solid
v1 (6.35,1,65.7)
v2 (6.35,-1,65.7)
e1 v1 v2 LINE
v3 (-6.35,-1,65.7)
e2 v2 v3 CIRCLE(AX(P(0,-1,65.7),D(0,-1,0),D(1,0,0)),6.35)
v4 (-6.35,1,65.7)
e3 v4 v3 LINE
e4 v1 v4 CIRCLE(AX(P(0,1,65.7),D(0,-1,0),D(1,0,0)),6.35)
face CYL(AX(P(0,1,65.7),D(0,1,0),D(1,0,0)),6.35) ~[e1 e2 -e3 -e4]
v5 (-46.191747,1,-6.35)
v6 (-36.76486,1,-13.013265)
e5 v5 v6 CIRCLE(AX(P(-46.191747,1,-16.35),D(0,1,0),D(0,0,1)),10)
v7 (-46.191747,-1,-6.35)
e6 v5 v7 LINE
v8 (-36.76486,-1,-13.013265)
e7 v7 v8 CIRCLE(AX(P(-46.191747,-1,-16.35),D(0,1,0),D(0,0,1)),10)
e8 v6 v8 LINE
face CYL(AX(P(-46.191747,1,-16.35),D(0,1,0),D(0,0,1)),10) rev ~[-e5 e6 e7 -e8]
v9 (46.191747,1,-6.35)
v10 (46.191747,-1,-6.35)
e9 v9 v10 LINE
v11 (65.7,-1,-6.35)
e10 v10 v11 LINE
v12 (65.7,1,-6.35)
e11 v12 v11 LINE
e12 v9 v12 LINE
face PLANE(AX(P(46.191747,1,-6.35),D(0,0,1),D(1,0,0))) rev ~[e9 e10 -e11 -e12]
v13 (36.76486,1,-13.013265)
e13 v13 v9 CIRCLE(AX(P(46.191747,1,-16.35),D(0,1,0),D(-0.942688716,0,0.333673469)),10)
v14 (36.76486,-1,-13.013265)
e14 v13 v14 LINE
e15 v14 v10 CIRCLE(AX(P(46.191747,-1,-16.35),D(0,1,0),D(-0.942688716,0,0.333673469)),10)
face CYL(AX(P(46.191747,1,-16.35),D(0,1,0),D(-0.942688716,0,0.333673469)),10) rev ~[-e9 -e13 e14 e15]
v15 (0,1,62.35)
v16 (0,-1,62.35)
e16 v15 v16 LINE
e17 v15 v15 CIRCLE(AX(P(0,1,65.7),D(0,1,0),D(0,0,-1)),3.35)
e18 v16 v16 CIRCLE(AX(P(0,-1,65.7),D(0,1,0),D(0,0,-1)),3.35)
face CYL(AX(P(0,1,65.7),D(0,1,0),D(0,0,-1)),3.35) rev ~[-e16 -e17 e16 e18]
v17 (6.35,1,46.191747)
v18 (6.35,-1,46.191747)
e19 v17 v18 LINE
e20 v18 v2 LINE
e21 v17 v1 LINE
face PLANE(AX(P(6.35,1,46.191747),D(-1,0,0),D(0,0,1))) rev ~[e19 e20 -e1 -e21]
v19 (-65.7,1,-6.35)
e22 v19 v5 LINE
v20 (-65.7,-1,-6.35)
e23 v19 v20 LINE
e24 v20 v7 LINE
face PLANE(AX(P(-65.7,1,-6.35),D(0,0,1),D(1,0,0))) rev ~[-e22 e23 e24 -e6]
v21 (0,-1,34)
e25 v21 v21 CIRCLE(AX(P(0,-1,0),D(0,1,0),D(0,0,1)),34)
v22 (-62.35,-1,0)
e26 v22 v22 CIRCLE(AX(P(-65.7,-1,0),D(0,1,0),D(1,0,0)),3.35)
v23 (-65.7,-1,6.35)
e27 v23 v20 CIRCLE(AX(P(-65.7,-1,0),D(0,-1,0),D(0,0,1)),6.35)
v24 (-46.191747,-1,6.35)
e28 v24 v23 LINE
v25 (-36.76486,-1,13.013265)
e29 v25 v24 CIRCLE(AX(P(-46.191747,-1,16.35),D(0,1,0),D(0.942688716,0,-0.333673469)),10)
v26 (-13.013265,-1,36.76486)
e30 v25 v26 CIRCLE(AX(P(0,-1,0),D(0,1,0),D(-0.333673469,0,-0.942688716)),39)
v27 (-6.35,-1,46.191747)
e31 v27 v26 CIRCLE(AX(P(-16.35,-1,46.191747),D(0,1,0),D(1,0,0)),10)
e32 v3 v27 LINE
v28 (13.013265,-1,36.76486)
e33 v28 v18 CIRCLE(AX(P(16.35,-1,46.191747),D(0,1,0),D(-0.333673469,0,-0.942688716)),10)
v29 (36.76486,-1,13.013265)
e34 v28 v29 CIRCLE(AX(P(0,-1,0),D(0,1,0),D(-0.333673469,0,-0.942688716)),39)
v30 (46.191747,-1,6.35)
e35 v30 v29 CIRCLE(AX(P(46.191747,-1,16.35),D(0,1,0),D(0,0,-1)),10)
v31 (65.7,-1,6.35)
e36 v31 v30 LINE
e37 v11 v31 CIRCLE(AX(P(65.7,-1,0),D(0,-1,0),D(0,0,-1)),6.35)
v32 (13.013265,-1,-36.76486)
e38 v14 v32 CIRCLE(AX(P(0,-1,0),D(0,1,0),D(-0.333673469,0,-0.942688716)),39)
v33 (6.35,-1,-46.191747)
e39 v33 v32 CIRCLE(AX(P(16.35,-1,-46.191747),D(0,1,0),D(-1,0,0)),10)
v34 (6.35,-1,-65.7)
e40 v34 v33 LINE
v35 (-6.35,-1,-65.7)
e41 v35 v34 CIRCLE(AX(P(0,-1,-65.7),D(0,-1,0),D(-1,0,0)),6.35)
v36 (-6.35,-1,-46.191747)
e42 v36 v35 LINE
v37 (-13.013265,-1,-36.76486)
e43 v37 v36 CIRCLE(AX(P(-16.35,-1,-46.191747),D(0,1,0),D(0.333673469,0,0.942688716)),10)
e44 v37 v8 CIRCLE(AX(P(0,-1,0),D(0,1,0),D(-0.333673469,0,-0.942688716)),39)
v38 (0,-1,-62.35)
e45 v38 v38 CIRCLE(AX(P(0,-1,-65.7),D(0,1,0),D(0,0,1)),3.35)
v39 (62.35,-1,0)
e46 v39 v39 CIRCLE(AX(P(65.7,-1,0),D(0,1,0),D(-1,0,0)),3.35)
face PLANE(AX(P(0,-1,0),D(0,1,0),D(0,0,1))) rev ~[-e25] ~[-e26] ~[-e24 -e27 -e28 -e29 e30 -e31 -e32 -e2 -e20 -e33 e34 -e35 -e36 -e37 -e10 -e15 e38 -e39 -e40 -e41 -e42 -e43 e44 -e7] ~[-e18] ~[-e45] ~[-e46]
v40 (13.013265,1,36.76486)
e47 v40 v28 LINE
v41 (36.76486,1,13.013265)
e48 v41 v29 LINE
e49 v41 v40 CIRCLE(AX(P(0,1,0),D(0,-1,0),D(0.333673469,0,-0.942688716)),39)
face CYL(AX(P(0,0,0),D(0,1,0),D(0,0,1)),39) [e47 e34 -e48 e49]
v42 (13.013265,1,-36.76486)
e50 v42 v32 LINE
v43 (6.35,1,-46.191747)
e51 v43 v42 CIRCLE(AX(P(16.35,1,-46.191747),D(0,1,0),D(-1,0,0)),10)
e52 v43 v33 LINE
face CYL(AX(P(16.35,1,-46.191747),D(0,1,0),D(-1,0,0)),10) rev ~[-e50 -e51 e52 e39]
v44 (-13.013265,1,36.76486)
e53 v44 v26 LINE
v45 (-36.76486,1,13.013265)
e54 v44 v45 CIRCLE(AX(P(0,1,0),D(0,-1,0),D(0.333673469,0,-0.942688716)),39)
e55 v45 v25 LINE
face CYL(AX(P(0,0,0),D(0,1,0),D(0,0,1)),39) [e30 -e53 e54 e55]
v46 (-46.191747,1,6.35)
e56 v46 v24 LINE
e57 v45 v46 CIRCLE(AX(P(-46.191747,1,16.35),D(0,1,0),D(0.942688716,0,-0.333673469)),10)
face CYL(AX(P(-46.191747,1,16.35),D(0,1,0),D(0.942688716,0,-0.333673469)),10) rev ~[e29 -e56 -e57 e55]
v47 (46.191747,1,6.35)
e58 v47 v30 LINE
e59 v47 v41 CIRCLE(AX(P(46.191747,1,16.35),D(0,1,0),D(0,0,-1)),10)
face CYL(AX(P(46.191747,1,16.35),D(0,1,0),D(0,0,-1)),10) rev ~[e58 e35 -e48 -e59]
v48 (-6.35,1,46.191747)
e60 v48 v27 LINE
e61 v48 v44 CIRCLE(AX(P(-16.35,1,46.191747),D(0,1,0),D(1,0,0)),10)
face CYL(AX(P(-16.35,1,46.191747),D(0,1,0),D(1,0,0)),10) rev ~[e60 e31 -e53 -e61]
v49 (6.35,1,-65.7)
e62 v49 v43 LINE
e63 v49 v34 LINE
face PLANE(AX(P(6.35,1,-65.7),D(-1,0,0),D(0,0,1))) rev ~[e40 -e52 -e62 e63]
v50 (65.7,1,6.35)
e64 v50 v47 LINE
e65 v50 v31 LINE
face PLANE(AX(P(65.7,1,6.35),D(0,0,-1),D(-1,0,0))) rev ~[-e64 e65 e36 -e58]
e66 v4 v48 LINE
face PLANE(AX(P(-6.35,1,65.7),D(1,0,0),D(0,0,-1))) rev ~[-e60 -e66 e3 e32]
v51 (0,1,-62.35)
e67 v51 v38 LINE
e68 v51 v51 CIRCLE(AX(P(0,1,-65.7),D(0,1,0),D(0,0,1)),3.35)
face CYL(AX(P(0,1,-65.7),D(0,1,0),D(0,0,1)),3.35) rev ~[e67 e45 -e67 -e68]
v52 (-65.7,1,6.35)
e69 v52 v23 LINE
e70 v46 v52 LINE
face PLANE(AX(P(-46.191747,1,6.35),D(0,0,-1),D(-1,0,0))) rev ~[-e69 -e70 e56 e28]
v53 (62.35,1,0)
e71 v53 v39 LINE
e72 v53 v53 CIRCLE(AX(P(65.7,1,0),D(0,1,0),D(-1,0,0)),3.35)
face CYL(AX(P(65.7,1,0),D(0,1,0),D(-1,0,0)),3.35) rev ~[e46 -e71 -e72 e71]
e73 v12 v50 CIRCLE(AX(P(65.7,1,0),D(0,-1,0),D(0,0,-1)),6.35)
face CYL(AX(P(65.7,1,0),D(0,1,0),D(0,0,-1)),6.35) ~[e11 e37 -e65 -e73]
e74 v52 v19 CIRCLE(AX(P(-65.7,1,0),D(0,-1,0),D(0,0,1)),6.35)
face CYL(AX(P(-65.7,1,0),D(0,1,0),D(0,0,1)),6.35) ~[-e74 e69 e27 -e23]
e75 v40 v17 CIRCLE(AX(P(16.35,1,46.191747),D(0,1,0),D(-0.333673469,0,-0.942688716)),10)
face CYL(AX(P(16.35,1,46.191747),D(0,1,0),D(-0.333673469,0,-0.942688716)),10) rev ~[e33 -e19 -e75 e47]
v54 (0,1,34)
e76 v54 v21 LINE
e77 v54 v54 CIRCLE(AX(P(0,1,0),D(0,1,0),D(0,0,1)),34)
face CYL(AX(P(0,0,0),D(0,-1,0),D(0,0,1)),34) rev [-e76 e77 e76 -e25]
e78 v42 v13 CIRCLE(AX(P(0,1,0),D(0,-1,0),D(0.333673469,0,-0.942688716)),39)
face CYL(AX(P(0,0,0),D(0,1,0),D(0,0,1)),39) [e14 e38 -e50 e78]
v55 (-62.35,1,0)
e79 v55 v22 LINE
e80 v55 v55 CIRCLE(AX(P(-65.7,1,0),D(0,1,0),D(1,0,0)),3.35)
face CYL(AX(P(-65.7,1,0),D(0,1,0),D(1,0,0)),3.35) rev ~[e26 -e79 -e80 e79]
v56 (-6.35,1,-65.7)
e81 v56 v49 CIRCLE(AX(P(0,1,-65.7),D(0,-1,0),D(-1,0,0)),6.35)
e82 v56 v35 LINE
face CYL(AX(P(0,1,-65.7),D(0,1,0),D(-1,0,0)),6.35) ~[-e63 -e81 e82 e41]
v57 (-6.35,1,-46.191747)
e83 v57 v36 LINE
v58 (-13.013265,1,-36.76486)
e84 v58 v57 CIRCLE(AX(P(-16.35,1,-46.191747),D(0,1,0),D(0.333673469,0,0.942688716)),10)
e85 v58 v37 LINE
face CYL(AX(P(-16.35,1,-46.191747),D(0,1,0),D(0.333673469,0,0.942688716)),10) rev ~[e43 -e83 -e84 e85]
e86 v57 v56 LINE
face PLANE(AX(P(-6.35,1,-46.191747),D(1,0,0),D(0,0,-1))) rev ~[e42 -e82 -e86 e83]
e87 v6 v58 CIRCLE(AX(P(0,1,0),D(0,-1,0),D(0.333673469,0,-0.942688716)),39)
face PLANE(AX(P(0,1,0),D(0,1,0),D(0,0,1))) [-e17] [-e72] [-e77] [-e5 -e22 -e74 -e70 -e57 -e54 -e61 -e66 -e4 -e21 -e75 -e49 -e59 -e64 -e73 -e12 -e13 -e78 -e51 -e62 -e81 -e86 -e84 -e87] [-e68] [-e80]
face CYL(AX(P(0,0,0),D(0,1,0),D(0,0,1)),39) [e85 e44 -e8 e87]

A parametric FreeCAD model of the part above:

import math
import FreeCAD as App
import Part
import Sketcher

V = App.Vector

doc = App.newDocument("Part")
body = doc.addObject("PartDesign::Body", "Body")

# Sketch on XZ plane
sketch1 = body.newObject("Sketcher::SketchObject", "Sketch")
sketch1.AttachmentSupport = (doc.getObject("XZ_Plane"), [""])
sketch1.MapMode = "FlatFace"
sketch1.addGeometry(Part.Circle(V(0, 0, 0), V(0, 0, 1), 39), False)
sketch1.addGeometry(Part.Circle(V(0, 0, 0), V(0, 0, 1), 34), False)
sketch1.addConstraint(Sketcher.Constraint("Coincident", 0, 3, -1, 1))
sketch1.addConstraint(Sketcher.Constraint("Coincident", 1, 3, -1, 1))
sketch1.addConstraint(Sketcher.Constraint("Diameter", 0, 78.0))
sketch1.addConstraint(Sketcher.Constraint("Diameter", 1, 68.0))
pad1 = body.newObject("PartDesign::Pad", "Pad")
pad1.Profile = sketch1
pad1.Length = 2
pad1.Midplane = True

# Sketch on XZ plane
sketch2 = body.newObject("Sketcher::SketchObject", "Sketch001")
sketch2.AttachmentSupport = (doc.getObject("XZ_Plane"), [""])
sketch2.MapMode = "FlatFace"
sketch2.AttachmentOffset = App.Placement(V(0, 0, -1), App.Rotation())
sketch2.addGeometry(Part.LineSegment(V(-6.35, -65.7, 0), V(-6.35, -46.191747, 0)), False)
sketch2.addGeometry(Part.ArcOfCircle(Part.Circle(V(-16.35, -46.191747, 0), V(0, 0, 1), 10), math.radians(0), math.radians(70.508108)), False)
sketch2.addGeometry(Part.ArcOfCircle(Part.Circle(V(0, 0, 0), V(0, 0, 1), 39), math.radians(-109.491892), math.radians(-70.508108)), False)
sketch2.addGeometry(Part.ArcOfCircle(Part.Circle(V(16.35, -46.191747, 0), V(0, 0, 1), 10), math.radians(109.491892), math.radians(180)), False)
sketch2.addGeometry(Part.LineSegment(V(6.35, -46.191747, 0), V(6.35, -65.7, 0)), False)
sketch2.addGeometry(Part.ArcOfCircle(Part.Circle(V(0, -65.7, 0), V(0, 0, 1), 6.35), math.radians(180), math.radians(360)), False)
sketch2.addGeometry(Part.Circle(V(0, -65.7, 0), V(0, 0, 1), 3.35), False)
sketch2.addConstraint(Sketcher.Constraint("Tangent", 0, 2, 1, 1))
sketch2.addConstraint(Sketcher.Constraint("Tangent", 1, 2, 2, 1))
sketch2.addConstraint(Sketcher.Constraint("Tangent", 2, 2, 3, 1))
sketch2.addConstraint(Sketcher.Constraint("Tangent", 3, 2, 4, 1))
sketch2.addConstraint(Sketcher.Constraint("Tangent", 4, 2, 5, 2))
sketch2.addConstraint(Sketcher.Constraint("Tangent", 5, 1, 0, 1))
sketch2.addConstraint(Sketcher.Constraint("Vertical", 0))
sketch2.addConstraint(Sketcher.Constraint("Vertical", 4))
sketch2.addConstraint(Sketcher.Constraint("Coincident", 2, 3, -1, 1))
sketch2.addConstraint(Sketcher.Constraint("Coincident", 6, 3, 5, 3))
sketch2.addConstraint(Sketcher.Constraint("Equal", 1, 3))
sketch2.addConstraint(Sketcher.Constraint("PointOnObject", 5, 3, -2))
sketch2.addConstraint(Sketcher.Constraint("Radius", 1, 10.0))
sketch2.addConstraint(Sketcher.Constraint("Radius", 2, 39.0))
sketch2.addConstraint(Sketcher.Constraint("Diameter", 6, 6.7))
sketch2.addConstraint(Sketcher.Constraint("Radius", 5, 6.35))
sketch2.addConstraint(Sketcher.Constraint("DistanceY", 5, 3, -1, 1, 65.7))
pad2 = body.newObject("PartDesign::Pad", "Pad001")
pad2.Profile = sketch2
pad2.Length = 2
doc.recompute()

polarpattern = body.newObject("PartDesign::PolarPattern", "PolarPattern")
polarpattern.Originals = [pad2]
polarpattern.Axis = (doc.getObject("Y_Axis"), [""])
polarpattern.Angle = 360
polarpattern.Occurrences = 4
body.Tip = polarpattern

doc.recompute()
